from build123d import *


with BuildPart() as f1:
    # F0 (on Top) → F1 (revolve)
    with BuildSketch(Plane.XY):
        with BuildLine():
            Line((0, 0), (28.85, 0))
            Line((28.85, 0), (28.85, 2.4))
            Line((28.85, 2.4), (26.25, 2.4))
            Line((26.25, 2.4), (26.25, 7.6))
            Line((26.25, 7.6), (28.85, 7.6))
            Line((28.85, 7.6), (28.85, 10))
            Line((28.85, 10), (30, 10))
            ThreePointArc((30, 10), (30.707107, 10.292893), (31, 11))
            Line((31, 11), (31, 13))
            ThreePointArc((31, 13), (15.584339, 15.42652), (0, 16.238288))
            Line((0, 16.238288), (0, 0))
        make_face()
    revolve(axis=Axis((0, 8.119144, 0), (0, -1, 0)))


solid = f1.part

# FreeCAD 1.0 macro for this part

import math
import FreeCAD as App
import Part
import Sketcher
from FreeCAD import Vector

doc = App.newDocument("Part")
body = doc.addObject("PartDesign::Body", "Body")

sketch1 = doc.addObject("Sketcher::SketchObject", "Sketch")
body.addObject(sketch1)
sketch1.AttachmentSupport = (doc.XY_Plane, [""])
sketch1.MapMode = "FlatFace"
sketch1.addGeometry([
    Part.LineSegment(Vector(0, 0, 0), Vector(28.9, 0, 0)),
    Part.LineSegment(Vector(28.9, 0, 0), Vector(28.9, 2.4, 0)),
    Part.LineSegment(Vector(28.9, 2.4, 0), Vector(26.2, 2.4, 0)),
    Part.LineSegment(Vector(26.2, 2.4, 0), Vector(26.2, 7.6, 0)),
    Part.LineSegment(Vector(26.2, 7.6, 0), Vector(28.9, 7.6, 0)),
    Part.LineSegment(Vector(28.9, 7.6, 0), Vector(28.9, 10, 0)),
    Part.LineSegment(Vector(28.9, 10, 0), Vector(30, 10, 0)),
    Part.ArcOfCircle(Part.Circle(Vector(30, 11, 0), Vector(0, 0, 1), 1), math.radians(-90), math.radians(0)),
    Part.LineSegment(Vector(31, 11, 0), Vector(31, 13, 0)),
    Part.ArcOfCircle(Part.Circle(Vector(0, -133.8, 0), Vector(0, 0, 1), 150), math.radians(78.07), math.radians(90)),
    Part.LineSegment(Vector(0, 16.2, 0), Vector(0, 0, 0)),
], False)
sketch1.addConstraint([
    Sketcher.Constraint("Coincident", 0, 2, 1, 1),
    Sketcher.Constraint("Coincident", 1, 2, 2, 1),
    Sketcher.Constraint("Coincident", 2, 2, 3, 1),
    Sketcher.Constraint("Coincident", 3, 2, 4, 1),
    Sketcher.Constraint("Coincident", 4, 2, 5, 1),
    Sketcher.Constraint("Coincident", 5, 2, 6, 1),
    Sketcher.Constraint("Tangent", 6, 2, 7, 1),
    Sketcher.Constraint("Tangent", 7, 2, 8, 1),
    Sketcher.Constraint("Coincident", 8, 2, 9, 1),
    Sketcher.Constraint("Coincident", 9, 2, 10, 1),
    Sketcher.Constraint("Coincident", 10, 2, 0, 1),
    Sketcher.Constraint("Horizontal", 0),
    Sketcher.Constraint("Vertical", 1),
    Sketcher.Constraint("Horizontal", 2),
    Sketcher.Constraint("Vertical", 3),
    Sketcher.Constraint("Horizontal", 4),
    Sketcher.Constraint("Vertical", 5),
    Sketcher.Constraint("Horizontal", 6),
    Sketcher.Constraint("Vertical", 8),
    Sketcher.Constraint("Vertical", 10),
    Sketcher.Constraint("Coincident", 10, 2, -1, 1),
    Sketcher.Constraint("Vertical", 1, 2, 4, 2),
    Sketcher.Constraint("Equal", 1, 5),
    Sketcher.Constraint("Radius", 7, 0.999999),
    Sketcher.Constraint("DistanceY", 8, 1, 8, 2, 2.0),
    Sketcher.Constraint("DistanceX", 2, 2, 2, 1, 2.6),
    Sketcher.Constraint("DistanceY", 1, 1, 1, 2, 2.4),
    Sketcher.Constraint("DistanceY", 3, 1, 3, 2, 5.2),
    Sketcher.Constraint("DistanceX", -1, 1, 7, 3, 30.000001),
    Sketcher.Constraint("DistanceX", 0, 1, 0, 2, 28.85),
    Sketcher.Constraint("Radius", 9, 149.999918),
    Sketcher.Constraint("DistanceY", 10, 2, 10, 1, 16.238288),
])
revolution = doc.addObject("PartDesign::Revolution", "Revolution")
body.addObject(revolution)
revolution.Profile = sketch1
revolution.ReferenceAxis = (sketch1, ["V_Axis"])
revolution.Angle = 360

doc.recompute()
